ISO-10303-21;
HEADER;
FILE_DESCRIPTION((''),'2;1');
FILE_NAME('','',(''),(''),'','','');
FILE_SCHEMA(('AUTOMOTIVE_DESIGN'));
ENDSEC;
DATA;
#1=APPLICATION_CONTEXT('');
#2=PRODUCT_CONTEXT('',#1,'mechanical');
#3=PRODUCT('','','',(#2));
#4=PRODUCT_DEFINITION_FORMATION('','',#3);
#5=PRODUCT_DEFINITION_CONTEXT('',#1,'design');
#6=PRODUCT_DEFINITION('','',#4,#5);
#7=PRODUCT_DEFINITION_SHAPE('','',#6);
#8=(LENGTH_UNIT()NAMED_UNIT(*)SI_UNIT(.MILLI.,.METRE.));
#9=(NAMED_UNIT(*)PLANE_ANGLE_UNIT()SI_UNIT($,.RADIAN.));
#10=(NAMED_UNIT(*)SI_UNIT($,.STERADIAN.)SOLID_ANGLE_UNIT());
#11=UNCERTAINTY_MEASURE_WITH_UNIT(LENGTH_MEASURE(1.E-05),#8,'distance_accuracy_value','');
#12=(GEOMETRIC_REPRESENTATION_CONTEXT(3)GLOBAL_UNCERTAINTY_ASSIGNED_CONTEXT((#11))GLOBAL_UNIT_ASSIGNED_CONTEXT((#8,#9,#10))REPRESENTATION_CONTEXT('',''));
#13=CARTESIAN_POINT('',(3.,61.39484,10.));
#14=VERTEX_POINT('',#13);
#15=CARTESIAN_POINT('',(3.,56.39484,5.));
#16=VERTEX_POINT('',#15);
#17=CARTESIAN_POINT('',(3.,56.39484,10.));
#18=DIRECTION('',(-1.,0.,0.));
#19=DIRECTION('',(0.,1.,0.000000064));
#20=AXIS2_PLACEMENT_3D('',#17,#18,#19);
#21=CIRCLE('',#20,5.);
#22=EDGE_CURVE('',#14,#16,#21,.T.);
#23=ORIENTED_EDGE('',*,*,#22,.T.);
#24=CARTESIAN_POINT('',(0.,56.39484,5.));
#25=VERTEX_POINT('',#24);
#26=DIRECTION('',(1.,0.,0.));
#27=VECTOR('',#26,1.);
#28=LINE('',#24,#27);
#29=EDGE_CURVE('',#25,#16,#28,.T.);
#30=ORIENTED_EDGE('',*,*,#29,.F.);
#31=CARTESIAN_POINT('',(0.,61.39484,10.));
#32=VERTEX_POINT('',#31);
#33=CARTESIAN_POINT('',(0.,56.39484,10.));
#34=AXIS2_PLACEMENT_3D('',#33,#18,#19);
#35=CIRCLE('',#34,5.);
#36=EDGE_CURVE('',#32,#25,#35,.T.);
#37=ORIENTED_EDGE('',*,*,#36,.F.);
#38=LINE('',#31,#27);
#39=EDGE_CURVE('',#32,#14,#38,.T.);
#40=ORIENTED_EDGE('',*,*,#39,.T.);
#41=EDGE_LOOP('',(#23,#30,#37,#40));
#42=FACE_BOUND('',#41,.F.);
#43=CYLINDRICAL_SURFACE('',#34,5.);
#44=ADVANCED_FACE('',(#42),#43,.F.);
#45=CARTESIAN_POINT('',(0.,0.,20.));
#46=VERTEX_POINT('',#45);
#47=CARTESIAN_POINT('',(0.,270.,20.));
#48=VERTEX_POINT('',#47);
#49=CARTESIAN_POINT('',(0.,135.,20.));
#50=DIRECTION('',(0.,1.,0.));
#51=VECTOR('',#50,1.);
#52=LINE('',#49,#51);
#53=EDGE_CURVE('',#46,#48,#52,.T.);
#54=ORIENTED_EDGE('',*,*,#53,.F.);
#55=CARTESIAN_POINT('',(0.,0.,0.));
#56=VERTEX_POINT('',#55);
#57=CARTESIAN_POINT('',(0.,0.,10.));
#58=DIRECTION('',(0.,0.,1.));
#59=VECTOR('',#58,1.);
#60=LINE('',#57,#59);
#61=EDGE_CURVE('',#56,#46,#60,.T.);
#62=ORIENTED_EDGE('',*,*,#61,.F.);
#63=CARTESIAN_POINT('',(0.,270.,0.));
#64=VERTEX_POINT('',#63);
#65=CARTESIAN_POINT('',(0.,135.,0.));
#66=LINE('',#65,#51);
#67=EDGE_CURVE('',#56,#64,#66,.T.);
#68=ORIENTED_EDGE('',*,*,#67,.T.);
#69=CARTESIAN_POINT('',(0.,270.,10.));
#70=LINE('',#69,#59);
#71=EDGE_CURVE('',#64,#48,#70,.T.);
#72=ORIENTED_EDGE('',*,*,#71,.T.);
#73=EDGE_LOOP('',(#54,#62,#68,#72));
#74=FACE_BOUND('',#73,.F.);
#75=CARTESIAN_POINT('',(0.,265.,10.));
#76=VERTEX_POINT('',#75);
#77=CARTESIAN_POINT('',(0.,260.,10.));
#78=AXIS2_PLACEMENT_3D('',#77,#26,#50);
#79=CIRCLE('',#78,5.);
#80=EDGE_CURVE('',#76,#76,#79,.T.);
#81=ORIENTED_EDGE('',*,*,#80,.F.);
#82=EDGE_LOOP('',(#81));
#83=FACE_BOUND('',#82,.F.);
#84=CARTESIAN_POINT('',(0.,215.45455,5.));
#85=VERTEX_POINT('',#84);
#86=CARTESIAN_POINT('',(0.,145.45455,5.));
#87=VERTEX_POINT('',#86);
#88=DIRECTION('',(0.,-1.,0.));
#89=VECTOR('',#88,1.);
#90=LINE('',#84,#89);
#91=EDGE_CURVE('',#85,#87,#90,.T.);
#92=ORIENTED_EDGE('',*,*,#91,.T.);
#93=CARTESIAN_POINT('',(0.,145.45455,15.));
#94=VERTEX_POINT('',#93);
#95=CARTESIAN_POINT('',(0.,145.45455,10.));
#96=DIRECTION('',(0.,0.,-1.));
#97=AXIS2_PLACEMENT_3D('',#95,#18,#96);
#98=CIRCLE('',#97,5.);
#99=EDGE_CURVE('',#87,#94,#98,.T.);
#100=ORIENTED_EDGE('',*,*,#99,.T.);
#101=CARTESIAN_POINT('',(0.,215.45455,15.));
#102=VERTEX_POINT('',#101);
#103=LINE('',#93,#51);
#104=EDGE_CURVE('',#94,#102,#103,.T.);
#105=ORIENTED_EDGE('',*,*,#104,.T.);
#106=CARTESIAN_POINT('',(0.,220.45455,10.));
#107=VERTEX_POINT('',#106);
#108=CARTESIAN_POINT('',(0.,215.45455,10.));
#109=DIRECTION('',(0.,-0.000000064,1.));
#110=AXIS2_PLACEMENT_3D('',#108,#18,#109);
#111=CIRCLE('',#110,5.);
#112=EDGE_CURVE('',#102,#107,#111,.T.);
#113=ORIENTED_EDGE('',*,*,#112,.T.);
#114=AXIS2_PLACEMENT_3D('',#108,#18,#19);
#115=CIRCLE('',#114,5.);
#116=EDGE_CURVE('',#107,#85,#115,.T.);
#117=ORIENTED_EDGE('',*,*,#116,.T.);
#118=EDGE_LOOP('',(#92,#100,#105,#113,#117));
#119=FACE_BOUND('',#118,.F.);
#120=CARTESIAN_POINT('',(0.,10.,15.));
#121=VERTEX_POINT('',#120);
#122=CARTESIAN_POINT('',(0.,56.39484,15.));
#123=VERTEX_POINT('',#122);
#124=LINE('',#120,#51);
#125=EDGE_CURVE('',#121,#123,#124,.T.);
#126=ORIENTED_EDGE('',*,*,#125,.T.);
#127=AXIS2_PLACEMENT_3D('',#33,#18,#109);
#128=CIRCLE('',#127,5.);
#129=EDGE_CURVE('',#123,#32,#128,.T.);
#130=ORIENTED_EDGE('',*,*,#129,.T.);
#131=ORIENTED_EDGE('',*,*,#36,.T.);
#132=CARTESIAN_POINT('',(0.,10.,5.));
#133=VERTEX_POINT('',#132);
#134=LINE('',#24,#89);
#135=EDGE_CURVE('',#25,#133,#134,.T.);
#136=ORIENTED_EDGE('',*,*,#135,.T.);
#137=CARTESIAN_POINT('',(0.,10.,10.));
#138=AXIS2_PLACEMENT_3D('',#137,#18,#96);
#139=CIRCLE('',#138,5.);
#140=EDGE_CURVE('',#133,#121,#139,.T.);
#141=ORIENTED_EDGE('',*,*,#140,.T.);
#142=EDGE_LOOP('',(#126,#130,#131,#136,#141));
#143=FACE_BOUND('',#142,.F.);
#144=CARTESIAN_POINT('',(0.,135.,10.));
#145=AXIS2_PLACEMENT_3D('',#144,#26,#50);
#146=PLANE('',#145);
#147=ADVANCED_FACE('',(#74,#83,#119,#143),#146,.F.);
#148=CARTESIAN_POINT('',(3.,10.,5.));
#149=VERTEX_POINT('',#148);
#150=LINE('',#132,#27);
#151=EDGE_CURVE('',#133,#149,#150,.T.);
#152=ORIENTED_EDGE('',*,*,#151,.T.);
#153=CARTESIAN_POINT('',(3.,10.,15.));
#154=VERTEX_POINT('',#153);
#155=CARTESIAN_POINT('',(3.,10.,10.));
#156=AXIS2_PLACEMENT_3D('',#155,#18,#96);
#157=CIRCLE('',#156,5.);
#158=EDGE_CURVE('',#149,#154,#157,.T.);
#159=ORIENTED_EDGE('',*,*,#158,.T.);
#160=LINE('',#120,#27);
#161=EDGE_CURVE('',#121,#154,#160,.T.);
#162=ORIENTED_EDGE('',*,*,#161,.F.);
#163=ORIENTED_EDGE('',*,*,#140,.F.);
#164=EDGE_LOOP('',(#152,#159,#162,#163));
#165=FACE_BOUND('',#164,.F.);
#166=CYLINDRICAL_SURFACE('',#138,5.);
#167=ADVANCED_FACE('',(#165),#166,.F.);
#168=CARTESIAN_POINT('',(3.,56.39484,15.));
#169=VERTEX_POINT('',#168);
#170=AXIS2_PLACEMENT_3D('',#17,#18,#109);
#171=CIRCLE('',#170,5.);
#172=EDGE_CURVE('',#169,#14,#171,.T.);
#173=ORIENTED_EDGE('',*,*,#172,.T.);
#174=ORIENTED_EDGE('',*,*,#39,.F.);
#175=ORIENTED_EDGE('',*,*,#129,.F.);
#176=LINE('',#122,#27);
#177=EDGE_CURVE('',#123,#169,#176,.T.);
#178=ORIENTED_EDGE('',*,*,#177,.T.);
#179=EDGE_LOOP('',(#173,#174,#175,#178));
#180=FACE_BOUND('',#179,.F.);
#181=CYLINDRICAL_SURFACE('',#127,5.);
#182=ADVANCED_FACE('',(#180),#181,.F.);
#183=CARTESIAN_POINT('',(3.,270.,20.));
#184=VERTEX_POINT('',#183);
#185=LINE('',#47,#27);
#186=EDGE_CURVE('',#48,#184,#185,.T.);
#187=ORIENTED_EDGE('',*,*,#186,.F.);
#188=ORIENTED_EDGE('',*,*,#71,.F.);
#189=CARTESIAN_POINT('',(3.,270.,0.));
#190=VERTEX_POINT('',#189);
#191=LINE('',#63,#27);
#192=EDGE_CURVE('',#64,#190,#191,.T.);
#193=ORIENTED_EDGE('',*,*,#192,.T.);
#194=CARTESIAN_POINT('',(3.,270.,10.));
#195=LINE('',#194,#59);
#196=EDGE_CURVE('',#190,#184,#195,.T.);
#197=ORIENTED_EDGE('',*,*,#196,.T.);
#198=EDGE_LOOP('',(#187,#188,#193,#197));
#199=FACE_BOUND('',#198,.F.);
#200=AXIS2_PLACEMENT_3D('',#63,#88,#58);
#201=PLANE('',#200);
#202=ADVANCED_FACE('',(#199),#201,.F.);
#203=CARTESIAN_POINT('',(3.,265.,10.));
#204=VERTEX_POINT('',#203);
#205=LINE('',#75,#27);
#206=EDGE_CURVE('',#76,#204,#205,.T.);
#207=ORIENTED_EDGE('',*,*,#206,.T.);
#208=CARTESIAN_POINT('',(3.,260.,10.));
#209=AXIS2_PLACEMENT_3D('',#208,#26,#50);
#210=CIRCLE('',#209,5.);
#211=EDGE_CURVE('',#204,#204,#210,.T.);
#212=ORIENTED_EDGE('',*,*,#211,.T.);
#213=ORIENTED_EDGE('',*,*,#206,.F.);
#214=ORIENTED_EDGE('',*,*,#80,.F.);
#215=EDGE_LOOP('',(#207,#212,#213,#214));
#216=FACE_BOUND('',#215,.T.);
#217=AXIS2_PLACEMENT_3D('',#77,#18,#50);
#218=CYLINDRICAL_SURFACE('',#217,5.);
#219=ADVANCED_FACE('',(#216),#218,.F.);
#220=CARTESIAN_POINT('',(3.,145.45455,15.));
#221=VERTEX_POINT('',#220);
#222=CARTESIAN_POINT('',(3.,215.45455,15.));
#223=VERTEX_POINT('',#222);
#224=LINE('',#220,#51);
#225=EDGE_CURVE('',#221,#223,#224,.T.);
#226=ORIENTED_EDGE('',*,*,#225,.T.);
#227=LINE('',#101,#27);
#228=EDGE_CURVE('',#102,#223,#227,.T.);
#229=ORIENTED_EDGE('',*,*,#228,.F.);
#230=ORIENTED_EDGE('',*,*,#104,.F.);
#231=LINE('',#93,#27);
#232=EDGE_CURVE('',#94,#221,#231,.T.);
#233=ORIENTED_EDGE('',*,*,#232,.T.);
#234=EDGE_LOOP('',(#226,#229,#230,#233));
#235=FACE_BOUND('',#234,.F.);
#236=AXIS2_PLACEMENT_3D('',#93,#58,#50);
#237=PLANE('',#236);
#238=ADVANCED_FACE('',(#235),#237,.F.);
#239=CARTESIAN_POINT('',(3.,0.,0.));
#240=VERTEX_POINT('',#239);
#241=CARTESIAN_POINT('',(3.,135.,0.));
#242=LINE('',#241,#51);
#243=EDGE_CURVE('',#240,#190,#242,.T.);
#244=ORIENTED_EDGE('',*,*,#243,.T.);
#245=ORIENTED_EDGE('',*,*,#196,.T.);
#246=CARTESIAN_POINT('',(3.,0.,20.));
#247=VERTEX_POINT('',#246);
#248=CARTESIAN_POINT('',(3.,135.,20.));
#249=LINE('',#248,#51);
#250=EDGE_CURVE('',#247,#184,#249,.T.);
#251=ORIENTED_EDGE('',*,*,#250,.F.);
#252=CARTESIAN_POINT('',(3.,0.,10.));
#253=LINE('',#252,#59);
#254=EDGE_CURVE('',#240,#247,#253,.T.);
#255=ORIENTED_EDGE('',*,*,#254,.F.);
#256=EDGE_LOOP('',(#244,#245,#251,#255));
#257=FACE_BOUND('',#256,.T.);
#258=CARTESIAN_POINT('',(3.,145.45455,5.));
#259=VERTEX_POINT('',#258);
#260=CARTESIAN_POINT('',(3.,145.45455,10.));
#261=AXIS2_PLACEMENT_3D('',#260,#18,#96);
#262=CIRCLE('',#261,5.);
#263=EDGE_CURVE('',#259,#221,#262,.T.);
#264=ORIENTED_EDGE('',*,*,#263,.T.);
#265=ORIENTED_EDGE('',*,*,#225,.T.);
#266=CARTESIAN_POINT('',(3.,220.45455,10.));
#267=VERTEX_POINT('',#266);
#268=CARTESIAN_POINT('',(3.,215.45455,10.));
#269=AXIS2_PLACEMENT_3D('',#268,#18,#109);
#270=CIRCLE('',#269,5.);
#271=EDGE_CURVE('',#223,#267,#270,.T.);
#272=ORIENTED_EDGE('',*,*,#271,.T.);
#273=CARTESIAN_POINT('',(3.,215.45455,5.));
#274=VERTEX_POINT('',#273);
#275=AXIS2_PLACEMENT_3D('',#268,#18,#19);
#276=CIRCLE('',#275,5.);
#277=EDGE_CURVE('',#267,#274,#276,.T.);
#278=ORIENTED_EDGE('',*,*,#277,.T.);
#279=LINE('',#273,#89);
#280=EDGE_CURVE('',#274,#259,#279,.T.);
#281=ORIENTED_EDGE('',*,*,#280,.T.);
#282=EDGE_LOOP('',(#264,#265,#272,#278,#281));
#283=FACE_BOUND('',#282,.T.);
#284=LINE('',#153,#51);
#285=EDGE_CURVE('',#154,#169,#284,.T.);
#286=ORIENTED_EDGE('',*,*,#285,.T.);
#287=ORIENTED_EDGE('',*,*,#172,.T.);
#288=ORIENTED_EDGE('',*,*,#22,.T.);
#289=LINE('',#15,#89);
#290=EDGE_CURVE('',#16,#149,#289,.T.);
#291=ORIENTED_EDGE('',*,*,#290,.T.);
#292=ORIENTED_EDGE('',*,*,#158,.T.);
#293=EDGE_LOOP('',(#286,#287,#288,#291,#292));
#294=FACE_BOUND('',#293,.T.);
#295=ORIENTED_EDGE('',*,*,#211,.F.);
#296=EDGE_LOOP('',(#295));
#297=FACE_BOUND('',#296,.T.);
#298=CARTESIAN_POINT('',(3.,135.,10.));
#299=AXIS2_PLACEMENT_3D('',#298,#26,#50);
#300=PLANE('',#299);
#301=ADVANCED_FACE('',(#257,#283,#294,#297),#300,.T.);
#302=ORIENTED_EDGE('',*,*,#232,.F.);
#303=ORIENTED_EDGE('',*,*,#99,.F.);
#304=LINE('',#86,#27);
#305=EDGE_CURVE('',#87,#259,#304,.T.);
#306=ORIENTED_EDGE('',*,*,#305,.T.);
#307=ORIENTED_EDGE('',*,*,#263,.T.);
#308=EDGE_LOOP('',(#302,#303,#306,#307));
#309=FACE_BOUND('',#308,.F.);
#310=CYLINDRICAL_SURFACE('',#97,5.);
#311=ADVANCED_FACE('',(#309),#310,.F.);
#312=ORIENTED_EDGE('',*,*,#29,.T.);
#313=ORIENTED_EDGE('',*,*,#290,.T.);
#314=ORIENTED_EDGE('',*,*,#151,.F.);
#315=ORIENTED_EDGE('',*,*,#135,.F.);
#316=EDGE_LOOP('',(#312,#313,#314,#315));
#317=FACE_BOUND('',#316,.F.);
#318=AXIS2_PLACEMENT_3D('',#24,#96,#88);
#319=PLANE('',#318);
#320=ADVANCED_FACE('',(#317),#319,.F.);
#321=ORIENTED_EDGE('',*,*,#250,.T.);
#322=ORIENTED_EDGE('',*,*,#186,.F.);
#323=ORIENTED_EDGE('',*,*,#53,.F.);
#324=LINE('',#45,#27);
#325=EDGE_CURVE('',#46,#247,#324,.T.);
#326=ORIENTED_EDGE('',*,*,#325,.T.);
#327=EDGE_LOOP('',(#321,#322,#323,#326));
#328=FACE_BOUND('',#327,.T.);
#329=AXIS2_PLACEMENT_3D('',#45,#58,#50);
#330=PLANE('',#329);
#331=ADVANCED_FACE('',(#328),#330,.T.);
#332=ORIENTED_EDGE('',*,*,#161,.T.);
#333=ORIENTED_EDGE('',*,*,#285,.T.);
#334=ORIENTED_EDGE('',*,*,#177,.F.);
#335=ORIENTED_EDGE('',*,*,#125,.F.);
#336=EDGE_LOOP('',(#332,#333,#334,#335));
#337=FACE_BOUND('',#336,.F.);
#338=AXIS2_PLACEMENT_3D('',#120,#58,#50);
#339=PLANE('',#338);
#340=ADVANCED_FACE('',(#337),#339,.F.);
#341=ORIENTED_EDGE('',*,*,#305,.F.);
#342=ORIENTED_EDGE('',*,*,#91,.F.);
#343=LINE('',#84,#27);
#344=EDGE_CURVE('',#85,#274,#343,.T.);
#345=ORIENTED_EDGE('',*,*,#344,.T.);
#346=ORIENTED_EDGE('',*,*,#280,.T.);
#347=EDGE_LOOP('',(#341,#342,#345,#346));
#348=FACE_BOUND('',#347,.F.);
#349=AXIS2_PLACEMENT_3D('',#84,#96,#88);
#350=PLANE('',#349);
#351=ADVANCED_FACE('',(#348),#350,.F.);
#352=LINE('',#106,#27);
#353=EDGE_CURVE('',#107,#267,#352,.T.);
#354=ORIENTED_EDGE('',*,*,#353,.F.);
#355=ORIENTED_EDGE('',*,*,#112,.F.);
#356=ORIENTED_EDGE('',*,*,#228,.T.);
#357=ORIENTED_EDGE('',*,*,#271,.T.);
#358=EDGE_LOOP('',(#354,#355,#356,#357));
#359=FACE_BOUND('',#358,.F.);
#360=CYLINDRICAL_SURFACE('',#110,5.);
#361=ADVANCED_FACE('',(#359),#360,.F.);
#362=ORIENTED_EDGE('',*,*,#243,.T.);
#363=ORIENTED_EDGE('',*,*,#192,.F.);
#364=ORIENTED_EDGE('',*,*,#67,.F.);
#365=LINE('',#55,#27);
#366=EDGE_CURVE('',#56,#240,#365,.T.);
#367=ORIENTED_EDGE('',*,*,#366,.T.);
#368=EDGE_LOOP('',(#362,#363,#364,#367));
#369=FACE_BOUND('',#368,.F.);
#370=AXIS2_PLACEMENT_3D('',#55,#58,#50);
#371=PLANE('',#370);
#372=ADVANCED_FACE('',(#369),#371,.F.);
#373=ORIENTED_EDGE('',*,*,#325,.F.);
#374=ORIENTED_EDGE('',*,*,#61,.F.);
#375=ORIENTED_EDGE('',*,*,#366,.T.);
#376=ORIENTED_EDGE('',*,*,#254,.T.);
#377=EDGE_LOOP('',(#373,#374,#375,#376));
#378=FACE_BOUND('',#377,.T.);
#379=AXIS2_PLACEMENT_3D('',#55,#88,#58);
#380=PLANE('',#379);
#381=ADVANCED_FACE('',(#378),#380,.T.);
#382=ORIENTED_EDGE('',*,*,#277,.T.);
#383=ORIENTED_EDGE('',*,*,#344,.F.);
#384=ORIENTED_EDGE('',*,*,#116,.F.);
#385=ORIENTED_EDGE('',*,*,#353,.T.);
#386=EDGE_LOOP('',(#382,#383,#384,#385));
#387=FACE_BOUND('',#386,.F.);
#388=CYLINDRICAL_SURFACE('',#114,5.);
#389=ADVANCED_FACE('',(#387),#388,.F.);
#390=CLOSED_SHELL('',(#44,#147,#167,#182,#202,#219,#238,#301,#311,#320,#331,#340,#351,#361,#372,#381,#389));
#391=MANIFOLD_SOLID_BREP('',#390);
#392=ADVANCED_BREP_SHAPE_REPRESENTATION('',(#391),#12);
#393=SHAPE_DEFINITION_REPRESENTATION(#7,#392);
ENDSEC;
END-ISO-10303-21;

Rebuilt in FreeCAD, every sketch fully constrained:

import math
import FreeCAD as App
import Part
import Sketcher
from FreeCAD import Vector

doc = App.newDocument("Part")
body = doc.addObject("PartDesign::Body", "Body")

sketch1 = body.newObject("Sketcher::SketchObject", "Sketch")
sketch1.AttachmentSupport = (doc.getObject("YZ_Plane"), [""])
sketch1.MapMode = "FlatFace"
sketch1.addGeometry([
    Part.LineSegment(Vector(0, 20, 0), Vector(0, 0, 0)),
    Part.LineSegment(Vector(0, 0, 0), Vector(270, 0, 0)),
    Part.LineSegment(Vector(270, 0, 0), Vector(270, 20, 0)),
    Part.LineSegment(Vector(270, 20, 0), Vector(0, 20, 0)),
    Part.LineSegment(Vector(56.39484, 5, 0), Vector(10, 5, 0)),
    Part.ArcOfCircle(Part.Circle(Vector(10, 10, 0), Vector(0, 0, 1), 5), math.radians(90), math.radians(270)),
    Part.LineSegment(Vector(10, 15, 0), Vector(56.39484, 15, 0)),
    Part.ArcOfCircle(Part.Circle(Vector(56.39484, 10, 0), Vector(0, 0, 1), 5), math.radians(-0.000004), math.radians(90.000004)),
    Part.ArcOfCircle(Part.Circle(Vector(56.39484, 10, 0), Vector(0, 0, 1), 5), math.radians(-90.000004), math.radians(0.000004)),
    Part.LineSegment(Vector(215.45455, 5, 0), Vector(145.45455, 5, 0)),
    Part.ArcOfCircle(Part.Circle(Vector(145.45455, 10, 0), Vector(0, 0, 1), 5), math.radians(90), math.radians(270)),
    Part.LineSegment(Vector(145.45455, 15, 0), Vector(215.45455, 15, 0)),
    Part.ArcOfCircle(Part.Circle(Vector(215.45455, 10, 0), Vector(0, 0, 1), 5), math.radians(-0.000004), math.radians(90.000004)),
    Part.ArcOfCircle(Part.Circle(Vector(215.45455, 10, 0), Vector(0, 0, 1), 5), math.radians(-90.000004), math.radians(0.000004)),
    Part.Circle(Vector(260, 10, 0), Vector(0, 0, 1), 5),
], False)
sketch1.addConstraint([
    Sketcher.Constraint("Coincident", 0, 2, 1, 1),
    Sketcher.Constraint("Coincident", 1, 2, 2, 1),
    Sketcher.Constraint("Coincident", 2, 2, 3, 1),
    Sketcher.Constraint("Coincident", 3, 2, 0, 1),
    Sketcher.Constraint("Tangent", 4, 2, 5, 2),
    Sketcher.Constraint("Tangent", 5, 1, 6, 1),
    Sketcher.Constraint("Tangent", 6, 2, 7, 2),
    Sketcher.Constraint("Tangent", 7, 1, 8, 2),
    Sketcher.Constraint("Tangent", 8, 1, 4, 1),
    Sketcher.Constraint("Tangent", 9, 2, 10, 2),
    Sketcher.Constraint("Tangent", 10, 1, 11, 1),
    Sketcher.Constraint("Tangent", 11, 2, 12, 2),
    Sketcher.Constraint("Tangent", 12, 1, 13, 2),
    Sketcher.Constraint("Tangent", 13, 1, 9, 1),
    Sketcher.Constraint("Vertical", 0),
    Sketcher.Constraint("Horizontal", 1),
    Sketcher.Constraint("Vertical", 2),
    Sketcher.Constraint("Horizontal", 3),
    Sketcher.Constraint("Horizontal", 4),
    Sketcher.Constraint("Horizontal", 6),
    Sketcher.Constraint("Horizontal", 9),
    Sketcher.Constraint("Horizontal", 11),
    Sketcher.Constraint("Coincident", 0, 2, -1, 1),
    Sketcher.Constraint("Equal", 5, 7),
    Sketcher.Constraint("Equal", 8, 10),
    Sketcher.Constraint("Equal", 10, 12),
    Sketcher.Constraint("Equal", 13, 14),
    Sketcher.Constraint("Horizontal", 8, 3, 10, 3),
    Sketcher.Constraint("Horizontal", 13, 3, 14, 3),
    Sketcher.Constraint("Horizontal", 14, 3, 7, 1),
    Sketcher.Constraint("Horizontal", 7, 1, 12, 1),
    Sketcher.Constraint("Diameter", 14, 10.0),
    Sketcher.Constraint("DistanceX", 1, 1, 1, 2, 270.0),
    Sketcher.Constraint("DistanceX", 9, 2, 9, 1, 70.0),
    Sketcher.Constraint("DistanceY", 0, 2, 0, 1, 20.0),
    Sketcher.Constraint("DistanceX", -1, 1, 5, 3, 10.0),
    Sketcher.Constraint("DistanceY", -1, 1, 5, 3, 10.0),
    Sketcher.Constraint("DistanceX", -1, 1, 14, 3, 260.0),
    Sketcher.Constraint("DistanceX", 4, 2, 4, 1, 46.39484),
    Sketcher.Constraint("DistanceX", -1, 1, 10, 3, 145.45455),
])
pad1 = body.newObject("PartDesign::Pad", "Pad")
pad1.Profile = sketch1
pad1.Length = 3

doc.recompute()
